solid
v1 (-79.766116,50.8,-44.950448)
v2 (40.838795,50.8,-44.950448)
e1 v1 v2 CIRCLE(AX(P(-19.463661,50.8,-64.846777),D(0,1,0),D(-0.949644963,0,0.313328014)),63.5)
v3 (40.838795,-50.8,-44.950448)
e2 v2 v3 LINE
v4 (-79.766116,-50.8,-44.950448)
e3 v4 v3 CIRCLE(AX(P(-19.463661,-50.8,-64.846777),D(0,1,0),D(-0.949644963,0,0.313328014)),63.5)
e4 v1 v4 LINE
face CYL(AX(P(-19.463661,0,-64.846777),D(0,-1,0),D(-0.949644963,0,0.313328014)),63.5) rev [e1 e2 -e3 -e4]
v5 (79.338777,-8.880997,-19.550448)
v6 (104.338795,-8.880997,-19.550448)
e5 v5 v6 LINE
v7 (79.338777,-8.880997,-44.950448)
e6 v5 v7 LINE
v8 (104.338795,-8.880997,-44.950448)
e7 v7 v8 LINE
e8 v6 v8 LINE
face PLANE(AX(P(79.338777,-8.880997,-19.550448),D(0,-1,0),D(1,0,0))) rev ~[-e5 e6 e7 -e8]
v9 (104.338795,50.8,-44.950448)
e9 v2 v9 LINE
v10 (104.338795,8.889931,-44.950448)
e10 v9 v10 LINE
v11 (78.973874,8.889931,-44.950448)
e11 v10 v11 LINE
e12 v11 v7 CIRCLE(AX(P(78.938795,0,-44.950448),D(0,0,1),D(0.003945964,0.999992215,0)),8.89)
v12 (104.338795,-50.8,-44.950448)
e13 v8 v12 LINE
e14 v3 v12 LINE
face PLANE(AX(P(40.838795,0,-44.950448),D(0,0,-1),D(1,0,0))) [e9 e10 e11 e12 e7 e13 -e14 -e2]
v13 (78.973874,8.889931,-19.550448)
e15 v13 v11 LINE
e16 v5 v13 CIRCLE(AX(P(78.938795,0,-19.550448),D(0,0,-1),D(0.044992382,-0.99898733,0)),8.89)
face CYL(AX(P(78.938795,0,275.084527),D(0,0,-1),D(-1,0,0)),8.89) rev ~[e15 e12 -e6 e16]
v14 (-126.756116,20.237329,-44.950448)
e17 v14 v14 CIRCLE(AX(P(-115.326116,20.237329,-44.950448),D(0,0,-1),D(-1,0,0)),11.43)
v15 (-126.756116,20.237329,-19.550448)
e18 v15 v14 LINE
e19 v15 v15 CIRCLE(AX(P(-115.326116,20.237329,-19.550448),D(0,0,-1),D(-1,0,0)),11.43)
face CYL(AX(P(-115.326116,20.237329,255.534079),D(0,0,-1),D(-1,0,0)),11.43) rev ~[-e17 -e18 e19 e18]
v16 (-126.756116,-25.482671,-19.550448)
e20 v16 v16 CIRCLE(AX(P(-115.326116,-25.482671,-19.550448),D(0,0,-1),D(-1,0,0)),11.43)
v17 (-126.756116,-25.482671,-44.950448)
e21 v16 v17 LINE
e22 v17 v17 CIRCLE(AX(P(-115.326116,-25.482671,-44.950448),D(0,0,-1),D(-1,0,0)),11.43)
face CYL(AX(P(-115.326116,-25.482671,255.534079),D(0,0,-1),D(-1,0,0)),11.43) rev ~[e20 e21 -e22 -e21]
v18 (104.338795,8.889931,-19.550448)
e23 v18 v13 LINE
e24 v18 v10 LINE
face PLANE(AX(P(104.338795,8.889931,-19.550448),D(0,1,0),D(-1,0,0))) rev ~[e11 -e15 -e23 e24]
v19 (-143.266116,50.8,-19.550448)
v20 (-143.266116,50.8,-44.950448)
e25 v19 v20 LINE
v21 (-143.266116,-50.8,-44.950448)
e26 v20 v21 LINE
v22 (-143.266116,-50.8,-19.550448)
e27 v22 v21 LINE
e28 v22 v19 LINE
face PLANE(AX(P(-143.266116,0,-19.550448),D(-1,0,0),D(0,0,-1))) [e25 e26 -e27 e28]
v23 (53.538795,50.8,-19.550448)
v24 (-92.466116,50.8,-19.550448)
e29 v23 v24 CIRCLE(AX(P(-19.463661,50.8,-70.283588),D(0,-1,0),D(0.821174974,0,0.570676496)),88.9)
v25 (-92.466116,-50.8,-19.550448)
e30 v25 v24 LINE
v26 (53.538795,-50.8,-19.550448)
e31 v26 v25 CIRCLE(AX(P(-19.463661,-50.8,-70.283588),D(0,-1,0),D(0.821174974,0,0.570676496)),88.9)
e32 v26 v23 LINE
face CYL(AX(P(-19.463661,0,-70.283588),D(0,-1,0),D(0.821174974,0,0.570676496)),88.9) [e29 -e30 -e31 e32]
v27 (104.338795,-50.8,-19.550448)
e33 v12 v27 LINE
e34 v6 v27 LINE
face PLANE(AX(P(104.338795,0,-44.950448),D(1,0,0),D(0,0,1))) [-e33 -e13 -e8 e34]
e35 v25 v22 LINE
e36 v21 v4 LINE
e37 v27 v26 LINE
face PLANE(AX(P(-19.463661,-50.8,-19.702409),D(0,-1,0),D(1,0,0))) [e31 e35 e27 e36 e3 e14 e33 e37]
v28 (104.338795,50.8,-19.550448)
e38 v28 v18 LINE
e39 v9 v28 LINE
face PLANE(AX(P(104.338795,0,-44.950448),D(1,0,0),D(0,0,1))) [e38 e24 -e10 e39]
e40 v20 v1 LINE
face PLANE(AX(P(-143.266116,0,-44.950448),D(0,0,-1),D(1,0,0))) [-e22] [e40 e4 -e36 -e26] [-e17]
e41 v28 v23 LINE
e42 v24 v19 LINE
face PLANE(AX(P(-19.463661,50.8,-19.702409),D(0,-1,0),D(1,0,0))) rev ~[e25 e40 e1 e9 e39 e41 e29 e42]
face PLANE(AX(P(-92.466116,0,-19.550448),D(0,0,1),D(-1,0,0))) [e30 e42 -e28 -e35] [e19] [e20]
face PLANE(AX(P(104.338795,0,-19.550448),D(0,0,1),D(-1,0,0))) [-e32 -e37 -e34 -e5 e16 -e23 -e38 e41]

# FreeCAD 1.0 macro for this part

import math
import FreeCAD as App
import Part
import Sketcher
from FreeCAD import Vector
Q = App.Units.Quantity

doc = App.newDocument("Part")
body = doc.addObject("PartDesign::Body", "Body")

sketch1 = doc.addObject("Sketcher::SketchObject", "Sketch")
body.addObject(sketch1)
sketch1.AttachmentSupport = (doc.XZ_Plane, [""])
sketch1.MapMode = "FlatFace"
sketch1.addGeometry([
    Part.LineSegment(Vector(-143, -20, 0), Vector(-143, -45, 0)),
    Part.LineSegment(Vector(-143, -45, 0), Vector(-80, -45, 0)),
    Part.ArcOfCircle(Part.Circle(Vector(-19, -65, 0), Vector(0, 0, 1), 64), math.radians(18), math.radians(162)),
    Part.LineSegment(Vector(41, -45, 0), Vector(104, -45, 0)),
    Part.LineSegment(Vector(104, -45, 0), Vector(104, -20, 0)),
    Part.LineSegment(Vector(104, -20, 0), Vector(54, -20, 0)),
    Part.ArcOfCircle(Part.Circle(Vector(-19, -70, 0), Vector(0, 0, 1), 89), math.radians(35), math.radians(145)),
    Part.LineSegment(Vector(-92, -20, 0), Vector(-143, -20, 0)),
], False)
sketch1.addConstraint([
    Sketcher.Constraint("Coincident", 0, 2, 1, 1),
    Sketcher.Constraint("Coincident", 1, 2, 2, 2),
    Sketcher.Constraint("Coincident", 2, 1, 3, 1),
    Sketcher.Constraint("Coincident", 3, 2, 4, 1),
    Sketcher.Constraint("Coincident", 4, 2, 5, 1),
    Sketcher.Constraint("Coincident", 5, 2, 6, 1),
    Sketcher.Constraint("Coincident", 6, 2, 7, 1),
    Sketcher.Constraint("Coincident", 7, 2, 0, 1),
    Sketcher.Constraint("Vertical", 0),
    Sketcher.Constraint("Horizontal", 1),
    Sketcher.Constraint("Horizontal", 3),
    Sketcher.Constraint("Vertical", 4),
    Sketcher.Constraint("Horizontal", 5),
    Sketcher.Constraint("Horizontal", 7),
    Sketcher.Constraint("Horizontal", 1, 2, 2, 1),
    Sketcher.Constraint("Horizontal", 5, 2, 6, 2),
    Sketcher.Constraint("Vertical", 2, 3, 6, 3),
    Sketcher.Constraint("Equal", 1, 3),
    Sketcher.Constraint("Radius", 2, Q("2.5 in")),
    Sketcher.Constraint("Radius", 6, Q("3.5 in")),
    Sketcher.Constraint("DistanceX", 5, 2, 5, 1, Q("2 in")),
    Sketcher.Constraint("DistanceY", 0, 2, 0, 1, Q("1 in")),
    Sketcher.Constraint("DistanceX", 1, 1, 1, 2, Q("2.5 in")),
    Sketcher.Constraint("DistanceX", 2, 3, -1, 1, Q("19.463661 mm")),
    Sketcher.Constraint("DistanceY", 6, 3, -1, 1, Q("70.283588 mm")),
    Sketcher.Constraint("DistanceY", 6, 3, 2, 3, Q("5.436812 mm")),
])
pad1 = doc.addObject("PartDesign::Pad", "Pad")
body.addObject(pad1)
pad1.Profile = sketch1
pad1.Length = Q("4 in")
pad1.Midplane = True

sketch2 = doc.addObject("Sketcher::SketchObject", "Sketch001")
body.addObject(sketch2)
sketch2.AttachmentSupport = (doc.XY_Plane, [""])
sketch2.MapMode = "FlatFace"
sketch2.AttachmentOffset = App.Placement(Vector(0, 0, -19.550448), App.Rotation())
sketch2.addGeometry([
    Part.Circle(Vector(-115, 20, 0), Vector(0, 0, 1), 11),
    Part.Circle(Vector(-115, -25, 0), Vector(0, 0, 1), 11),
], False)
sketch2.addConstraint([
    Sketcher.Constraint("Equal", 0, 1),
    Sketcher.Constraint("Vertical", 0, 3, 1, 3),
    Sketcher.Constraint("Diameter", 0, Q("0.9 in")),
    Sketcher.Constraint("DistanceY", 1, 3, 0, 3, Q("1.8 in")),
    Sketcher.Constraint("DistanceY", -1, 1, 0, 3, Q("20.237329 mm")),
    Sketcher.Constraint("DistanceX", 0, 3, -1, 1, Q("115.326116 mm")),
])
doc.recompute()
hole = doc.addObject("PartDesign::Hole", "Hole")
body.addObject(hole)
hole.Profile = sketch2
hole.ThreadType = "None"
hole.Diameter = Q("0.9 in")
hole.DepthType = "ThroughAll"

sketch3 = doc.addObject("Sketcher::SketchObject", "Sketch002")
body.addObject(sketch3)
sketch3.AttachmentSupport = (doc.XY_Plane, [""])
sketch3.MapMode = "FlatFace"
sketch3.addGeometry(Part.Circle(Vector(79, 0, 0), Vector(0, 0, 1), 9), False)
sketch3.addConstraint([
    Sketcher.Constraint("PointOnObject", 0, 3, -1),
    Sketcher.Constraint("Diameter", 0, Q("0.7 in")),
    Sketcher.Constraint("DistanceX", -1, 1, 0, 3, Q("78.938795 mm")),
])
doc.recompute()
hole2 = doc.addObject("PartDesign::Hole", "Hole001")
body.addObject(hole2)
hole2.Profile = sketch3
hole2.ThreadType = "None"
hole2.Diameter = Q("0.7 in")
hole2.DepthType = "ThroughAll"

sketch4 = doc.addObject("Sketcher::SketchObject", "Sketch003")
body.addObject(sketch4)
sketch4.AttachmentSupport = (doc.XY_Plane, [""])
sketch4.MapMode = "FlatFace"
sketch4.AttachmentOffset = App.Placement(Vector(0, 0, -19.550448), App.Rotation())
sketch4.addGeometry([
    Part.ArcOfCircle(Part.Circle(Vector(79, 0, 0), Vector(0, 0, 1), 9), math.radians(-87), math.radians(0)),
    Part.LineSegment(Vector(79, -9, 0), Vector(104, -9, 0)),
    Part.LineSegment(Vector(104, -9, 0), Vector(104, 9, 0)),
    Part.LineSegment(Vector(104, 9, 0), Vector(79, 9, 0)),
    Part.ArcOfCircle(Part.Circle(Vector(79, 0, 0), Vector(0, 0, 1), 9), math.radians(0), math.radians(90)),
], False)
sketch4.addConstraint([
    Sketcher.Constraint("Coincident", 0, 1, 1, 1),
    Sketcher.Constraint("Coincident", 1, 2, 2, 1),
    Sketcher.Constraint("Coincident", 2, 2, 3, 1),
    Sketcher.Constraint("Coincident", 3, 2, 4, 2),
    Sketcher.Constraint("Tangent", 4, 1, 0, 2),
    Sketcher.Constraint("Horizontal", 1),
    Sketcher.Constraint("Vertical", 2),
    Sketcher.Constraint("Horizontal", 3),
    Sketcher.Constraint("Equal", 0, 4),
    Sketcher.Constraint("PointOnObject", 0, 3, -1),
    Sketcher.Constraint("PointOnObject", 4, 1, -1),
    Sketcher.Constraint("Radius", 0, Q("0.35 in")),
    Sketcher.Constraint("DistanceX", 0, 3, 1, 2, Q("1 in")),
    Sketcher.Constraint("DistanceX", 3, 2, 3, 1, Q("25.36492 mm")),
    Sketcher.Constraint("DistanceY", 2, 1, 2, 2, Q("17.770928 mm")),
    Sketcher.Constraint("DistanceX", -1, 1, 0, 3, Q("78.938795 mm")),
])
pocket1 = doc.addObject("PartDesign::Pocket", "Pocket")
body.addObject(pocket1)
pocket1.Profile = sketch4
pocket1.Length = Q("1 in")

doc.recompute()
